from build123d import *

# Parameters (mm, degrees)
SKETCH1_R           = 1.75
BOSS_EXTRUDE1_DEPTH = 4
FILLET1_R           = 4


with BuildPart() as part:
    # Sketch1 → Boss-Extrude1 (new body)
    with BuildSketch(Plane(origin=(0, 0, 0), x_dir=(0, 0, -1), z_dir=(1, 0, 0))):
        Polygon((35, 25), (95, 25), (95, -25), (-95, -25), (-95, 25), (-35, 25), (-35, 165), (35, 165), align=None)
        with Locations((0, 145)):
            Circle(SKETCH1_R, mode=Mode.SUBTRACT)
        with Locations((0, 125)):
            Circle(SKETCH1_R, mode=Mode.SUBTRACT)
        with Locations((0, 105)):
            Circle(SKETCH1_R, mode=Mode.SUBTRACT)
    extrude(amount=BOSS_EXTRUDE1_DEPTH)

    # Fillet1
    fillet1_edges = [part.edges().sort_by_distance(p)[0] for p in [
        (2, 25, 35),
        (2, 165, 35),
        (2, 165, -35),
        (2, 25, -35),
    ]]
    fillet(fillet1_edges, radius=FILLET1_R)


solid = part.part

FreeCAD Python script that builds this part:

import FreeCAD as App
import Part
import Sketcher
from FreeCAD import Vector
Q = App.Units.Quantity


def edges_at(feature, points):
    """Names of the edges that pass closest to the given points."""
    edges = feature.Shape.Edges
    near = lambda p: min(range(len(edges)), key=lambda i: edges[i].distToShape(Part.Vertex(*p))[0])
    return sorted({f"Edge{near(p) + 1}" for p in points})

doc = App.newDocument("Part")
params = doc.addObject("Spreadsheet::Sheet", "Params")
for row, (alias, value) in enumerate([
    ("sketch1_diameter", "3.5 mm"),
    ("sketch1_width", "140 mm"),
    ("sketch1_width2", "50 mm"),
    ("sketch1_height", "60 mm"),
    ("sketch1_height2", "70 mm"),
    ("pad1_length", "4 mm"),
    ("fillet_radius", "4 mm"),
], start=1):
    params.set(f"A{row}", alias)
    params.set(f"B{row}", "=" + value)
    params.setAlias(f"B{row}", alias)

body = doc.addObject("PartDesign::Body", "Body")

# Sketch on YZ plane
sketch1 = doc.addObject("Sketcher::SketchObject", "Sketch")
body.addObject(sketch1)
sketch1.AttachmentSupport = (doc.YZ_Plane, [""])
sketch1.MapMode = "FlatFace"
sketch1.addGeometry([
    Part.LineSegment(Vector(25, -95, 0), Vector(25, -35, 0)),  # 0
    Part.LineSegment(Vector(25, -35, 0), Vector(165, -35, 0)),  # 1
    Part.LineSegment(Vector(165, -35, 0), Vector(165, 35, 0)),  # 2
    Part.LineSegment(Vector(165, 35, 0), Vector(25, 35, 0)),  # 3
    Part.LineSegment(Vector(25, 35, 0), Vector(25, 95, 0)),  # 4
    Part.LineSegment(Vector(25, 95, 0), Vector(-25, 95, 0)),  # 5
    Part.LineSegment(Vector(-25, 95, 0), Vector(-25, -95, 0)),  # 6
    Part.LineSegment(Vector(-25, -95, 0), Vector(25, -95, 0)),  # 7
    Part.Circle(Vector(105, 0, 0), Vector(0, 0, 1), 1.8),  # 8
    Part.Circle(Vector(125, 0, 0), Vector(0, 0, 1), 1.8),  # 9
    Part.Circle(Vector(145, 0, 0), Vector(0, 0, 1), 1.8),  # 10
], False)
sketch1.addConstraint([
    Sketcher.Constraint("Coincident", 0, 2, 1, 1),
    Sketcher.Constraint("Coincident", 1, 2, 2, 1),
    Sketcher.Constraint("Coincident", 2, 2, 3, 1),
    Sketcher.Constraint("Coincident", 3, 2, 4, 1),
    Sketcher.Constraint("Coincident", 4, 2, 5, 1),
    Sketcher.Constraint("Coincident", 5, 2, 6, 1),
    Sketcher.Constraint("Coincident", 6, 2, 7, 1),
    Sketcher.Constraint("Coincident", 7, 2, 0, 1),
    Sketcher.Constraint("Vertical", 0),
    Sketcher.Constraint("Horizontal", 1),
    Sketcher.Constraint("Vertical", 2),
    Sketcher.Constraint("Horizontal", 3),
    Sketcher.Constraint("Vertical", 4),
    Sketcher.Constraint("Horizontal", 5),
    Sketcher.Constraint("Vertical", 6),
    Sketcher.Constraint("Horizontal", 7),
    Sketcher.Constraint("Equal", 8, 9),
    Sketcher.Constraint("Equal", 9, 10),
    Sketcher.Constraint("Symmetric", 4, 2, 6, 2, -1, 1),
    Sketcher.Constraint("Symmetric", 0, 2, 3, 2, -1),
    Sketcher.Constraint("PointOnObject", 8, 3, -1),
    Sketcher.Constraint("PointOnObject", 9, 3, -1),
    Sketcher.Constraint("PointOnObject", 10, 3, -1),
    Sketcher.Constraint("Diameter", 8, Q("3.5 mm")),
    Sketcher.Constraint("DistanceX", 1, 1, 1, 2, Q("140 mm")),
    Sketcher.Constraint("DistanceX", 5, 2, 5, 1, Q("50 mm")),
    Sketcher.Constraint("DistanceY", 0, 1, 0, 2, Q("60 mm")),
    Sketcher.Constraint("DistanceY", 2, 1, 2, 2, Q("70 mm")),
    Sketcher.Constraint("DistanceX", -1, 1, 8, 3, Q("105 mm")),
    Sketcher.Constraint("DistanceX", -1, 1, 9, 3, Q("125 mm")),
    Sketcher.Constraint("DistanceX", -1, 1, 10, 3, Q("145 mm")),
])
sketch1.setExpression("Constraints[23]", "Params.sketch1_diameter")
sketch1.setExpression("Constraints[24]", "Params.sketch1_width")
sketch1.setExpression("Constraints[25]", "Params.sketch1_width2")
sketch1.setExpression("Constraints[26]", "Params.sketch1_height")
sketch1.setExpression("Constraints[27]", "Params.sketch1_height2")
pad1 = doc.addObject("PartDesign::Pad", "Pad")
body.addObject(pad1)
pad1.Profile = sketch1
pad1.setExpression("Length", "Params.pad1_length")
doc.recompute()

fillet = doc.addObject("PartDesign::Fillet", "Fillet")
body.addObject(fillet)
fillet.Base = (pad1, edges_at(pad1, [
    (2, 25, 35),
    (2, 165, 35),
    (2, 165, -35),
    (2, 25, -35),
]))
fillet.setExpression("Radius", "Params.fillet_radius")

doc.recompute()
